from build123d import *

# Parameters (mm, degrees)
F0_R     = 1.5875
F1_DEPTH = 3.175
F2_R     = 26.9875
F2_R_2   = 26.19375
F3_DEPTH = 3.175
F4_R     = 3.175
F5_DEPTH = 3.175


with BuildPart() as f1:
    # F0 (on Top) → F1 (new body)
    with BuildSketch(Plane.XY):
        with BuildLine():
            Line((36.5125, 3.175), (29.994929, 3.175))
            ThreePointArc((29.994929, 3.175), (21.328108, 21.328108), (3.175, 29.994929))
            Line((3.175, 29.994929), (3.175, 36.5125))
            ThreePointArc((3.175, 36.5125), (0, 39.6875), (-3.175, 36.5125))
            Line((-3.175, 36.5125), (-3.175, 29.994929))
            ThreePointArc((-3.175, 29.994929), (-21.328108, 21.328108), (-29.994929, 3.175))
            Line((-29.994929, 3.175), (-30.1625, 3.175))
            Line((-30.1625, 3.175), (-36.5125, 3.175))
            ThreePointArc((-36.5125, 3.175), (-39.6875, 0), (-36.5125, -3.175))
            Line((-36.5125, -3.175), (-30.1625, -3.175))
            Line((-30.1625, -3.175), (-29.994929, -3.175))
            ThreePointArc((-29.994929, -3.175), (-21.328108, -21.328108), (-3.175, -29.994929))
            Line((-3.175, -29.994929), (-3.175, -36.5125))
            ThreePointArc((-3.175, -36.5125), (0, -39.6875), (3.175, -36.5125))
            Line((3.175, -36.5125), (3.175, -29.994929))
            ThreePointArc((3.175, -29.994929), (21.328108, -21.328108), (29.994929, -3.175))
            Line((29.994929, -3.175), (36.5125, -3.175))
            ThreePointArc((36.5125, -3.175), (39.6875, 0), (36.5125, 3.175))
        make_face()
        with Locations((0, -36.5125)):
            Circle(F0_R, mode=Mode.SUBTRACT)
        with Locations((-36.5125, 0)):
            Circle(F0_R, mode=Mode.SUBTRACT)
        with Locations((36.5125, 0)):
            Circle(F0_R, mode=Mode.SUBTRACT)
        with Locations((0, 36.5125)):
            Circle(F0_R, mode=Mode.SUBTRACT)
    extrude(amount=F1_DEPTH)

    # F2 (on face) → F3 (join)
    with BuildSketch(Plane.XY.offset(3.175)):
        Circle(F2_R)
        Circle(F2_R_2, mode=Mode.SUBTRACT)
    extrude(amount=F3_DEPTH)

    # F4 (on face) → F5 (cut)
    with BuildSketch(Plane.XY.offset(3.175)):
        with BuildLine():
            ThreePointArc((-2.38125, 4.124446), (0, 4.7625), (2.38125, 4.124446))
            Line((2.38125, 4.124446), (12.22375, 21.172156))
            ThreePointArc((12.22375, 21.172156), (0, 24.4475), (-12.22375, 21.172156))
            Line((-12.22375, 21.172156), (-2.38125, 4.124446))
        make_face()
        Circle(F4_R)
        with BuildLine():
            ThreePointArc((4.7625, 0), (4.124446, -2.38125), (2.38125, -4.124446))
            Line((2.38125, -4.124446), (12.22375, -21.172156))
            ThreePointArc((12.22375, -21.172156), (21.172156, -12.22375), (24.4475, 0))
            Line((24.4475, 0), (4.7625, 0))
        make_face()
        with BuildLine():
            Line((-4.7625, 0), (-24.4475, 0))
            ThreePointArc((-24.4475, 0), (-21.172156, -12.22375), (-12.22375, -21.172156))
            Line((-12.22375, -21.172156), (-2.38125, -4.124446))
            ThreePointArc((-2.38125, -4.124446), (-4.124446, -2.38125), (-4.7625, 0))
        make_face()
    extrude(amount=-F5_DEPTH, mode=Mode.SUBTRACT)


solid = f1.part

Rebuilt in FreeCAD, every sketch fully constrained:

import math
import FreeCAD as App
import Part
import Sketcher
Q = App.Units.Quantity

doc = App.newDocument("Part")
body = doc.addObject("PartDesign::Body", "Body")

# Sketch on XY plane
sketch1 = body.newObject("Sketcher::SketchObject", "Sketch")
sketch1.AttachmentSupport = (doc.getObject("XY_Plane"), [""])
sketch1.MapMode = "FlatFace"
sketch1.addGeometry(Part.LineSegment(App.Vector(36.5, 3.2, 0), App.Vector(30, 3.2, 0)), False)
sketch1.addGeometry(Part.ArcOfCircle(Part.Circle(App.Vector(0, 0, 0), App.Vector(0, 0, 1), 30.2), math.radians(6), math.radians(84)), False)
sketch1.addGeometry(Part.LineSegment(App.Vector(3.2, 30, 0), App.Vector(3.2, 36.5, 0)), False)
sketch1.addGeometry(Part.ArcOfCircle(Part.Circle(App.Vector(0, 36.5, 0), App.Vector(0, 0, 1), 3.2), math.radians(0), math.radians(180)), False)
sketch1.addGeometry(Part.LineSegment(App.Vector(-3.2, 36.5, 0), App.Vector(-3.2, 30, 0)), False)
sketch1.addGeometry(Part.ArcOfCircle(Part.Circle(App.Vector(0, 0, 0), App.Vector(0, 0, 1), 30.2), math.radians(96), math.radians(174)), False)
sketch1.addGeometry(Part.LineSegment(App.Vector(-30, 3.2, 0), App.Vector(-36.5, 3.2, 0)), False)
sketch1.addGeometry(Part.ArcOfCircle(Part.Circle(App.Vector(-36.5, 0, 0), App.Vector(0, 0, 1), 3.2), math.radians(90), math.radians(270)), False)
sketch1.addGeometry(Part.LineSegment(App.Vector(-36.5, -3.2, 0), App.Vector(-30, -3.2, 0)), False)
sketch1.addGeometry(Part.ArcOfCircle(Part.Circle(App.Vector(0, 0, 0), App.Vector(0, 0, 1), 30.2), math.radians(-174), math.radians(-96)), False)
sketch1.addGeometry(Part.LineSegment(App.Vector(-3.2, -30, 0), App.Vector(-3.2, -36.5, 0)), False)
sketch1.addGeometry(Part.ArcOfCircle(Part.Circle(App.Vector(0, -36.5, 0), App.Vector(0, 0, 1), 3.2), math.radians(180), math.radians(360)), False)
sketch1.addGeometry(Part.LineSegment(App.Vector(3.2, -36.5, 0), App.Vector(3.2, -30, 0)), False)
sketch1.addGeometry(Part.ArcOfCircle(Part.Circle(App.Vector(0, 0, 0), App.Vector(0, 0, 1), 30.2), math.radians(-84), math.radians(-6)), False)
sketch1.addGeometry(Part.LineSegment(App.Vector(30, -3.2, 0), App.Vector(36.5, -3.2, 0)), False)
sketch1.addGeometry(Part.ArcOfCircle(Part.Circle(App.Vector(36.5, 0, 0), App.Vector(0, 0, 1), 3.2), math.radians(-90), math.radians(90)), False)
sketch1.addGeometry(Part.Circle(App.Vector(0, -36.5, 0), App.Vector(0, 0, 1), 1.6), False)
sketch1.addGeometry(Part.Circle(App.Vector(-36.5, 0, 0), App.Vector(0, 0, 1), 1.6), False)
sketch1.addGeometry(Part.Circle(App.Vector(36.5, 0, 0), App.Vector(0, 0, 1), 1.6), False)
sketch1.addGeometry(Part.Circle(App.Vector(0, 36.5, 0), App.Vector(0, 0, 1), 1.6), False)
sketch1.addConstraint(Sketcher.Constraint("Coincident", 0, 2, 1, 1))
sketch1.addConstraint(Sketcher.Constraint("Coincident", 1, 2, 2, 1))
sketch1.addConstraint(Sketcher.Constraint("Tangent", 2, 2, 3, 1))
sketch1.addConstraint(Sketcher.Constraint("Tangent", 3, 2, 4, 1))
sketch1.addConstraint(Sketcher.Constraint("Coincident", 4, 2, 5, 1))
sketch1.addConstraint(Sketcher.Constraint("Coincident", 5, 2, 6, 1))
sketch1.addConstraint(Sketcher.Constraint("Tangent", 6, 2, 7, 1))
sketch1.addConstraint(Sketcher.Constraint("Tangent", 7, 2, 8, 1))
sketch1.addConstraint(Sketcher.Constraint("Coincident", 8, 2, 9, 1))
sketch1.addConstraint(Sketcher.Constraint("Coincident", 9, 2, 10, 1))
sketch1.addConstraint(Sketcher.Constraint("Tangent", 10, 2, 11, 1))
sketch1.addConstraint(Sketcher.Constraint("Tangent", 11, 2, 12, 1))
sketch1.addConstraint(Sketcher.Constraint("Coincident", 12, 2, 13, 1))
sketch1.addConstraint(Sketcher.Constraint("Coincident", 13, 2, 14, 1))
sketch1.addConstraint(Sketcher.Constraint("Tangent", 14, 2, 15, 1))
sketch1.addConstraint(Sketcher.Constraint("Tangent", 15, 2, 0, 1))
sketch1.addConstraint(Sketcher.Constraint("Horizontal", 0))
sketch1.addConstraint(Sketcher.Constraint("Vertical", 2))
sketch1.addConstraint(Sketcher.Constraint("Vertical", 4))
sketch1.addConstraint(Sketcher.Constraint("Horizontal", 6))
sketch1.addConstraint(Sketcher.Constraint("Horizontal", 8))
sketch1.addConstraint(Sketcher.Constraint("Vertical", 10))
sketch1.addConstraint(Sketcher.Constraint("Vertical", 12))
sketch1.addConstraint(Sketcher.Constraint("Horizontal", 14))
sketch1.addConstraint(Sketcher.Constraint("Coincident", 1, 3, -1, 1))
sketch1.addConstraint(Sketcher.Constraint("Coincident", 5, 3, -1, 1))
sketch1.addConstraint(Sketcher.Constraint("Coincident", 9, 3, -1, 1))
sketch1.addConstraint(Sketcher.Constraint("Coincident", 13, 3, -1, 1))
sketch1.addConstraint(Sketcher.Constraint("Coincident", 16, 3, 11, 3))
sketch1.addConstraint(Sketcher.Constraint("Coincident", 17, 3, 7, 3))
sketch1.addConstraint(Sketcher.Constraint("Coincident", 18, 3, 15, 3))
sketch1.addConstraint(Sketcher.Constraint("Coincident", 19, 3, 3, 3))
sketch1.addConstraint(Sketcher.Constraint("Equal", 1, 5))
sketch1.addConstraint(Sketcher.Constraint("Equal", 3, 7))
sketch1.addConstraint(Sketcher.Constraint("Equal", 5, 9))
sketch1.addConstraint(Sketcher.Constraint("Equal", 7, 11))
sketch1.addConstraint(Sketcher.Constraint("Equal", 9, 13))
sketch1.addConstraint(Sketcher.Constraint("Equal", 11, 15))
sketch1.addConstraint(Sketcher.Constraint("Equal", 16, 17))
sketch1.addConstraint(Sketcher.Constraint("Equal", 17, 18))
sketch1.addConstraint(Sketcher.Constraint("Equal", 18, 19))
sketch1.addConstraint(Sketcher.Constraint("Symmetric", 3, 3, 11, 3, -1, 1))
sketch1.addConstraint(Sketcher.Constraint("Symmetric", 7, 3, 15, 3, -1, 1))
sketch1.addConstraint(Sketcher.Constraint("PointOnObject", 3, 3, -2))
sketch1.addConstraint(Sketcher.Constraint("PointOnObject", 7, 3, -1))
sketch1.addConstraint(Sketcher.Constraint("Equal", 14, 2))
sketch1.addConstraint(Sketcher.Constraint("Diameter", 16, Q("0.125 in")))
sketch1.addConstraint(Sketcher.Constraint("Radius", 1, Q("1.1875 in")))
sketch1.addConstraint(Sketcher.Constraint("Radius", 3, Q("0.125 in")))
sketch1.addConstraint(Sketcher.Constraint("DistanceY", -1, 1, 3, 3, Q("1.4375 in")))
pad1 = body.newObject("PartDesign::Pad", "Pad")
pad1.Profile = sketch1
pad1.Length = Q("0.125 in")

# Sketch on XY plane
sketch2 = body.newObject("Sketcher::SketchObject", "Sketch001")
sketch2.AttachmentSupport = (doc.getObject("XY_Plane"), [""])
sketch2.MapMode = "FlatFace"
sketch2.AttachmentOffset = App.Placement(App.Vector(0, 0, 0.125 * 25.4), App.Rotation())
sketch2.addGeometry(Part.Circle(App.Vector(0, 0, 0), App.Vector(0, 0, 1), 27), False)
sketch2.addGeometry(Part.Circle(App.Vector(0, 0, 0), App.Vector(0, 0, 1), 26), False)
sketch2.addConstraint(Sketcher.Constraint("Coincident", 0, 3, -1, 1))
sketch2.addConstraint(Sketcher.Constraint("Coincident", 1, 3, -1, 1))
sketch2.addConstraint(Sketcher.Constraint("Diameter", 0, Q("2.125 in")))
sketch2.addConstraint(Sketcher.Constraint("Diameter", 1, Q("2.0625 in")))
pad2 = body.newObject("PartDesign::Pad", "Pad001")
pad2.Profile = sketch2
pad2.Length = Q("0.125 in")

# Sketch on XY plane
sketch3 = body.newObject("Sketcher::SketchObject", "Sketch002")
sketch3.AttachmentSupport = (doc.getObject("XY_Plane"), [""])
sketch3.MapMode = "FlatFace"
sketch3.AttachmentOffset = App.Placement(App.Vector(0, 0, 0.125 * 25.4), App.Rotation())
sketch3.addGeometry(Part.ArcOfCircle(Part.Circle(App.Vector(0, 0, 0), App.Vector(0, 0, 1), 4.8), math.radians(60), math.radians(120)), False)
sketch3.addGeometry(Part.LineSegment(App.Vector(2.4, 4.1, 0), App.Vector(12.2, 21.2, 0)), False)
sketch3.addGeometry(Part.ArcOfCircle(Part.Circle(App.Vector(0, 0, 0), App.Vector(0, 0, 1), 24.4), math.radians(60), math.radians(120)), False)
sketch3.addGeometry(Part.LineSegment(App.Vector(-12.2, 21.2, 0), App.Vector(-2.4, 4.1, 0)), False)
sketch3.addGeometry(Part.Circle(App.Vector(0, 0, 0), App.Vector(0, 0, 1), 3.2), False)
sketch3.addGeometry(Part.ArcOfCircle(Part.Circle(App.Vector(0, 0, 0), App.Vector(0, 0, 1), 4.8), math.radians(-60), math.radians(0)), False)
sketch3.addGeometry(Part.LineSegment(App.Vector(2.4, -4.1, 0), App.Vector(12.2, -21.2, 0)), False)
sketch3.addGeometry(Part.ArcOfCircle(Part.Circle(App.Vector(0, 0, 0), App.Vector(0, 0, 1), 24.4), math.radians(-60), math.radians(0)), False)
sketch3.addGeometry(Part.LineSegment(App.Vector(24.4, 0, 0), App.Vector(4.8, 0, 0)), False)
sketch3.addGeometry(Part.LineSegment(App.Vector(-4.8, 0, 0), App.Vector(-24.4, 0, 0)), False)
sketch3.addGeometry(Part.ArcOfCircle(Part.Circle(App.Vector(0, 0, 0), App.Vector(0, 0, 1), 24.4), math.radians(-180), math.radians(-120)), False)
sketch3.addGeometry(Part.LineSegment(App.Vector(-12.2, -21.2, 0), App.Vector(-2.4, -4.1, 0)), False)
sketch3.addGeometry(Part.ArcOfCircle(Part.Circle(App.Vector(0, 0, 0), App.Vector(0, 0, 1), 4.8), math.radians(180), math.radians(240)), False)
sketch3.addConstraint(Sketcher.Constraint("Coincident", 0, 1, 1, 1))
sketch3.addConstraint(Sketcher.Constraint("Coincident", 1, 2, 2, 1))
sketch3.addConstraint(Sketcher.Constraint("Coincident", 2, 2, 3, 1))
sketch3.addConstraint(Sketcher.Constraint("Coincident", 3, 2, 0, 2))
sketch3.addConstraint(Sketcher.Constraint("Coincident", 5, 1, 6, 1))
sketch3.addConstraint(Sketcher.Constraint("Coincident", 6, 2, 7, 1))
sketch3.addConstraint(Sketcher.Constraint("Coincident", 7, 2, 8, 1))
sketch3.addConstraint(Sketcher.Constraint("Coincident", 8, 2, 5, 2))
sketch3.addConstraint(Sketcher.Constraint("Coincident", 9, 2, 10, 1))
sketch3.addConstraint(Sketcher.Constraint("Coincident", 10, 2, 11, 1))
sketch3.addConstraint(Sketcher.Constraint("Coincident", 11, 2, 12, 2))
sketch3.addConstraint(Sketcher.Constraint("Coincident", 12, 1, 9, 1))
sketch3.addConstraint(Sketcher.Constraint("Horizontal", 8))
sketch3.addConstraint(Sketcher.Constraint("Horizontal", 9))
sketch3.addConstraint(Sketcher.Constraint("Coincident", 0, 3, -1, 1))
sketch3.addConstraint(Sketcher.Constraint("Coincident", 2, 3, -1, 1))
sketch3.addConstraint(Sketcher.Constraint("Coincident", 4, 3, -1, 1))
sketch3.addConstraint(Sketcher.Constraint("Coincident", 5, 3, -1, 1))
sketch3.addConstraint(Sketcher.Constraint("Coincident", 7, 3, -1, 1))
sketch3.addConstraint(Sketcher.Constraint("Coincident", 10, 3, -1, 1))
sketch3.addConstraint(Sketcher.Constraint("Coincident", 12, 3, -1, 1))
sketch3.addConstraint(Sketcher.Constraint("Equal", 0, 5))
sketch3.addConstraint(Sketcher.Constraint("Equal", 2, 7))
sketch3.addConstraint(Sketcher.Constraint("Equal", 7, 10))
sketch3.addConstraint(Sketcher.Constraint("Equal", 5, 12))
sketch3.addConstraint(Sketcher.Constraint("PointOnObject", 7, 2, -1))
sketch3.addConstraint(Sketcher.Constraint("PointOnObject", 9, 2, -1))
sketch3.addConstraint(Sketcher.Constraint("Parallel", 3, 6))
sketch3.addConstraint(Sketcher.Constraint("Parallel", 1, 11))
sketch3.addConstraint(Sketcher.Constraint("Horizontal", 1, 2, 2, 2))
sketch3.addConstraint(Sketcher.Constraint("Horizontal", 0, 1, 3, 2))
sketch3.addConstraint(Sketcher.Constraint("Horizontal", 6, 2, 10, 2))
sketch3.addConstraint(Sketcher.Constraint("Vertical", 0, 1, 5, 1))
sketch3.addConstraint(Sketcher.Constraint("Diameter", 4, Q("0.25 in")))
sketch3.addConstraint(Sketcher.Constraint("Angle", 1, Q("60 deg")))
sketch3.addConstraint(Sketcher.Constraint("Radius", 0, Q("0.1875 in")))
sketch3.addConstraint(Sketcher.Constraint("Radius", 2, Q("0.9625 in")))
sketch3.addConstraint(Sketcher.Constraint("DistanceX", -1, 1, 0, 1, Q("0.09375 in")))
pocket1 = body.newObject("PartDesign::Pocket", "Pocket")
pocket1.Profile = sketch3
pocket1.Length = Q("0.125 in")

doc.recompute()
